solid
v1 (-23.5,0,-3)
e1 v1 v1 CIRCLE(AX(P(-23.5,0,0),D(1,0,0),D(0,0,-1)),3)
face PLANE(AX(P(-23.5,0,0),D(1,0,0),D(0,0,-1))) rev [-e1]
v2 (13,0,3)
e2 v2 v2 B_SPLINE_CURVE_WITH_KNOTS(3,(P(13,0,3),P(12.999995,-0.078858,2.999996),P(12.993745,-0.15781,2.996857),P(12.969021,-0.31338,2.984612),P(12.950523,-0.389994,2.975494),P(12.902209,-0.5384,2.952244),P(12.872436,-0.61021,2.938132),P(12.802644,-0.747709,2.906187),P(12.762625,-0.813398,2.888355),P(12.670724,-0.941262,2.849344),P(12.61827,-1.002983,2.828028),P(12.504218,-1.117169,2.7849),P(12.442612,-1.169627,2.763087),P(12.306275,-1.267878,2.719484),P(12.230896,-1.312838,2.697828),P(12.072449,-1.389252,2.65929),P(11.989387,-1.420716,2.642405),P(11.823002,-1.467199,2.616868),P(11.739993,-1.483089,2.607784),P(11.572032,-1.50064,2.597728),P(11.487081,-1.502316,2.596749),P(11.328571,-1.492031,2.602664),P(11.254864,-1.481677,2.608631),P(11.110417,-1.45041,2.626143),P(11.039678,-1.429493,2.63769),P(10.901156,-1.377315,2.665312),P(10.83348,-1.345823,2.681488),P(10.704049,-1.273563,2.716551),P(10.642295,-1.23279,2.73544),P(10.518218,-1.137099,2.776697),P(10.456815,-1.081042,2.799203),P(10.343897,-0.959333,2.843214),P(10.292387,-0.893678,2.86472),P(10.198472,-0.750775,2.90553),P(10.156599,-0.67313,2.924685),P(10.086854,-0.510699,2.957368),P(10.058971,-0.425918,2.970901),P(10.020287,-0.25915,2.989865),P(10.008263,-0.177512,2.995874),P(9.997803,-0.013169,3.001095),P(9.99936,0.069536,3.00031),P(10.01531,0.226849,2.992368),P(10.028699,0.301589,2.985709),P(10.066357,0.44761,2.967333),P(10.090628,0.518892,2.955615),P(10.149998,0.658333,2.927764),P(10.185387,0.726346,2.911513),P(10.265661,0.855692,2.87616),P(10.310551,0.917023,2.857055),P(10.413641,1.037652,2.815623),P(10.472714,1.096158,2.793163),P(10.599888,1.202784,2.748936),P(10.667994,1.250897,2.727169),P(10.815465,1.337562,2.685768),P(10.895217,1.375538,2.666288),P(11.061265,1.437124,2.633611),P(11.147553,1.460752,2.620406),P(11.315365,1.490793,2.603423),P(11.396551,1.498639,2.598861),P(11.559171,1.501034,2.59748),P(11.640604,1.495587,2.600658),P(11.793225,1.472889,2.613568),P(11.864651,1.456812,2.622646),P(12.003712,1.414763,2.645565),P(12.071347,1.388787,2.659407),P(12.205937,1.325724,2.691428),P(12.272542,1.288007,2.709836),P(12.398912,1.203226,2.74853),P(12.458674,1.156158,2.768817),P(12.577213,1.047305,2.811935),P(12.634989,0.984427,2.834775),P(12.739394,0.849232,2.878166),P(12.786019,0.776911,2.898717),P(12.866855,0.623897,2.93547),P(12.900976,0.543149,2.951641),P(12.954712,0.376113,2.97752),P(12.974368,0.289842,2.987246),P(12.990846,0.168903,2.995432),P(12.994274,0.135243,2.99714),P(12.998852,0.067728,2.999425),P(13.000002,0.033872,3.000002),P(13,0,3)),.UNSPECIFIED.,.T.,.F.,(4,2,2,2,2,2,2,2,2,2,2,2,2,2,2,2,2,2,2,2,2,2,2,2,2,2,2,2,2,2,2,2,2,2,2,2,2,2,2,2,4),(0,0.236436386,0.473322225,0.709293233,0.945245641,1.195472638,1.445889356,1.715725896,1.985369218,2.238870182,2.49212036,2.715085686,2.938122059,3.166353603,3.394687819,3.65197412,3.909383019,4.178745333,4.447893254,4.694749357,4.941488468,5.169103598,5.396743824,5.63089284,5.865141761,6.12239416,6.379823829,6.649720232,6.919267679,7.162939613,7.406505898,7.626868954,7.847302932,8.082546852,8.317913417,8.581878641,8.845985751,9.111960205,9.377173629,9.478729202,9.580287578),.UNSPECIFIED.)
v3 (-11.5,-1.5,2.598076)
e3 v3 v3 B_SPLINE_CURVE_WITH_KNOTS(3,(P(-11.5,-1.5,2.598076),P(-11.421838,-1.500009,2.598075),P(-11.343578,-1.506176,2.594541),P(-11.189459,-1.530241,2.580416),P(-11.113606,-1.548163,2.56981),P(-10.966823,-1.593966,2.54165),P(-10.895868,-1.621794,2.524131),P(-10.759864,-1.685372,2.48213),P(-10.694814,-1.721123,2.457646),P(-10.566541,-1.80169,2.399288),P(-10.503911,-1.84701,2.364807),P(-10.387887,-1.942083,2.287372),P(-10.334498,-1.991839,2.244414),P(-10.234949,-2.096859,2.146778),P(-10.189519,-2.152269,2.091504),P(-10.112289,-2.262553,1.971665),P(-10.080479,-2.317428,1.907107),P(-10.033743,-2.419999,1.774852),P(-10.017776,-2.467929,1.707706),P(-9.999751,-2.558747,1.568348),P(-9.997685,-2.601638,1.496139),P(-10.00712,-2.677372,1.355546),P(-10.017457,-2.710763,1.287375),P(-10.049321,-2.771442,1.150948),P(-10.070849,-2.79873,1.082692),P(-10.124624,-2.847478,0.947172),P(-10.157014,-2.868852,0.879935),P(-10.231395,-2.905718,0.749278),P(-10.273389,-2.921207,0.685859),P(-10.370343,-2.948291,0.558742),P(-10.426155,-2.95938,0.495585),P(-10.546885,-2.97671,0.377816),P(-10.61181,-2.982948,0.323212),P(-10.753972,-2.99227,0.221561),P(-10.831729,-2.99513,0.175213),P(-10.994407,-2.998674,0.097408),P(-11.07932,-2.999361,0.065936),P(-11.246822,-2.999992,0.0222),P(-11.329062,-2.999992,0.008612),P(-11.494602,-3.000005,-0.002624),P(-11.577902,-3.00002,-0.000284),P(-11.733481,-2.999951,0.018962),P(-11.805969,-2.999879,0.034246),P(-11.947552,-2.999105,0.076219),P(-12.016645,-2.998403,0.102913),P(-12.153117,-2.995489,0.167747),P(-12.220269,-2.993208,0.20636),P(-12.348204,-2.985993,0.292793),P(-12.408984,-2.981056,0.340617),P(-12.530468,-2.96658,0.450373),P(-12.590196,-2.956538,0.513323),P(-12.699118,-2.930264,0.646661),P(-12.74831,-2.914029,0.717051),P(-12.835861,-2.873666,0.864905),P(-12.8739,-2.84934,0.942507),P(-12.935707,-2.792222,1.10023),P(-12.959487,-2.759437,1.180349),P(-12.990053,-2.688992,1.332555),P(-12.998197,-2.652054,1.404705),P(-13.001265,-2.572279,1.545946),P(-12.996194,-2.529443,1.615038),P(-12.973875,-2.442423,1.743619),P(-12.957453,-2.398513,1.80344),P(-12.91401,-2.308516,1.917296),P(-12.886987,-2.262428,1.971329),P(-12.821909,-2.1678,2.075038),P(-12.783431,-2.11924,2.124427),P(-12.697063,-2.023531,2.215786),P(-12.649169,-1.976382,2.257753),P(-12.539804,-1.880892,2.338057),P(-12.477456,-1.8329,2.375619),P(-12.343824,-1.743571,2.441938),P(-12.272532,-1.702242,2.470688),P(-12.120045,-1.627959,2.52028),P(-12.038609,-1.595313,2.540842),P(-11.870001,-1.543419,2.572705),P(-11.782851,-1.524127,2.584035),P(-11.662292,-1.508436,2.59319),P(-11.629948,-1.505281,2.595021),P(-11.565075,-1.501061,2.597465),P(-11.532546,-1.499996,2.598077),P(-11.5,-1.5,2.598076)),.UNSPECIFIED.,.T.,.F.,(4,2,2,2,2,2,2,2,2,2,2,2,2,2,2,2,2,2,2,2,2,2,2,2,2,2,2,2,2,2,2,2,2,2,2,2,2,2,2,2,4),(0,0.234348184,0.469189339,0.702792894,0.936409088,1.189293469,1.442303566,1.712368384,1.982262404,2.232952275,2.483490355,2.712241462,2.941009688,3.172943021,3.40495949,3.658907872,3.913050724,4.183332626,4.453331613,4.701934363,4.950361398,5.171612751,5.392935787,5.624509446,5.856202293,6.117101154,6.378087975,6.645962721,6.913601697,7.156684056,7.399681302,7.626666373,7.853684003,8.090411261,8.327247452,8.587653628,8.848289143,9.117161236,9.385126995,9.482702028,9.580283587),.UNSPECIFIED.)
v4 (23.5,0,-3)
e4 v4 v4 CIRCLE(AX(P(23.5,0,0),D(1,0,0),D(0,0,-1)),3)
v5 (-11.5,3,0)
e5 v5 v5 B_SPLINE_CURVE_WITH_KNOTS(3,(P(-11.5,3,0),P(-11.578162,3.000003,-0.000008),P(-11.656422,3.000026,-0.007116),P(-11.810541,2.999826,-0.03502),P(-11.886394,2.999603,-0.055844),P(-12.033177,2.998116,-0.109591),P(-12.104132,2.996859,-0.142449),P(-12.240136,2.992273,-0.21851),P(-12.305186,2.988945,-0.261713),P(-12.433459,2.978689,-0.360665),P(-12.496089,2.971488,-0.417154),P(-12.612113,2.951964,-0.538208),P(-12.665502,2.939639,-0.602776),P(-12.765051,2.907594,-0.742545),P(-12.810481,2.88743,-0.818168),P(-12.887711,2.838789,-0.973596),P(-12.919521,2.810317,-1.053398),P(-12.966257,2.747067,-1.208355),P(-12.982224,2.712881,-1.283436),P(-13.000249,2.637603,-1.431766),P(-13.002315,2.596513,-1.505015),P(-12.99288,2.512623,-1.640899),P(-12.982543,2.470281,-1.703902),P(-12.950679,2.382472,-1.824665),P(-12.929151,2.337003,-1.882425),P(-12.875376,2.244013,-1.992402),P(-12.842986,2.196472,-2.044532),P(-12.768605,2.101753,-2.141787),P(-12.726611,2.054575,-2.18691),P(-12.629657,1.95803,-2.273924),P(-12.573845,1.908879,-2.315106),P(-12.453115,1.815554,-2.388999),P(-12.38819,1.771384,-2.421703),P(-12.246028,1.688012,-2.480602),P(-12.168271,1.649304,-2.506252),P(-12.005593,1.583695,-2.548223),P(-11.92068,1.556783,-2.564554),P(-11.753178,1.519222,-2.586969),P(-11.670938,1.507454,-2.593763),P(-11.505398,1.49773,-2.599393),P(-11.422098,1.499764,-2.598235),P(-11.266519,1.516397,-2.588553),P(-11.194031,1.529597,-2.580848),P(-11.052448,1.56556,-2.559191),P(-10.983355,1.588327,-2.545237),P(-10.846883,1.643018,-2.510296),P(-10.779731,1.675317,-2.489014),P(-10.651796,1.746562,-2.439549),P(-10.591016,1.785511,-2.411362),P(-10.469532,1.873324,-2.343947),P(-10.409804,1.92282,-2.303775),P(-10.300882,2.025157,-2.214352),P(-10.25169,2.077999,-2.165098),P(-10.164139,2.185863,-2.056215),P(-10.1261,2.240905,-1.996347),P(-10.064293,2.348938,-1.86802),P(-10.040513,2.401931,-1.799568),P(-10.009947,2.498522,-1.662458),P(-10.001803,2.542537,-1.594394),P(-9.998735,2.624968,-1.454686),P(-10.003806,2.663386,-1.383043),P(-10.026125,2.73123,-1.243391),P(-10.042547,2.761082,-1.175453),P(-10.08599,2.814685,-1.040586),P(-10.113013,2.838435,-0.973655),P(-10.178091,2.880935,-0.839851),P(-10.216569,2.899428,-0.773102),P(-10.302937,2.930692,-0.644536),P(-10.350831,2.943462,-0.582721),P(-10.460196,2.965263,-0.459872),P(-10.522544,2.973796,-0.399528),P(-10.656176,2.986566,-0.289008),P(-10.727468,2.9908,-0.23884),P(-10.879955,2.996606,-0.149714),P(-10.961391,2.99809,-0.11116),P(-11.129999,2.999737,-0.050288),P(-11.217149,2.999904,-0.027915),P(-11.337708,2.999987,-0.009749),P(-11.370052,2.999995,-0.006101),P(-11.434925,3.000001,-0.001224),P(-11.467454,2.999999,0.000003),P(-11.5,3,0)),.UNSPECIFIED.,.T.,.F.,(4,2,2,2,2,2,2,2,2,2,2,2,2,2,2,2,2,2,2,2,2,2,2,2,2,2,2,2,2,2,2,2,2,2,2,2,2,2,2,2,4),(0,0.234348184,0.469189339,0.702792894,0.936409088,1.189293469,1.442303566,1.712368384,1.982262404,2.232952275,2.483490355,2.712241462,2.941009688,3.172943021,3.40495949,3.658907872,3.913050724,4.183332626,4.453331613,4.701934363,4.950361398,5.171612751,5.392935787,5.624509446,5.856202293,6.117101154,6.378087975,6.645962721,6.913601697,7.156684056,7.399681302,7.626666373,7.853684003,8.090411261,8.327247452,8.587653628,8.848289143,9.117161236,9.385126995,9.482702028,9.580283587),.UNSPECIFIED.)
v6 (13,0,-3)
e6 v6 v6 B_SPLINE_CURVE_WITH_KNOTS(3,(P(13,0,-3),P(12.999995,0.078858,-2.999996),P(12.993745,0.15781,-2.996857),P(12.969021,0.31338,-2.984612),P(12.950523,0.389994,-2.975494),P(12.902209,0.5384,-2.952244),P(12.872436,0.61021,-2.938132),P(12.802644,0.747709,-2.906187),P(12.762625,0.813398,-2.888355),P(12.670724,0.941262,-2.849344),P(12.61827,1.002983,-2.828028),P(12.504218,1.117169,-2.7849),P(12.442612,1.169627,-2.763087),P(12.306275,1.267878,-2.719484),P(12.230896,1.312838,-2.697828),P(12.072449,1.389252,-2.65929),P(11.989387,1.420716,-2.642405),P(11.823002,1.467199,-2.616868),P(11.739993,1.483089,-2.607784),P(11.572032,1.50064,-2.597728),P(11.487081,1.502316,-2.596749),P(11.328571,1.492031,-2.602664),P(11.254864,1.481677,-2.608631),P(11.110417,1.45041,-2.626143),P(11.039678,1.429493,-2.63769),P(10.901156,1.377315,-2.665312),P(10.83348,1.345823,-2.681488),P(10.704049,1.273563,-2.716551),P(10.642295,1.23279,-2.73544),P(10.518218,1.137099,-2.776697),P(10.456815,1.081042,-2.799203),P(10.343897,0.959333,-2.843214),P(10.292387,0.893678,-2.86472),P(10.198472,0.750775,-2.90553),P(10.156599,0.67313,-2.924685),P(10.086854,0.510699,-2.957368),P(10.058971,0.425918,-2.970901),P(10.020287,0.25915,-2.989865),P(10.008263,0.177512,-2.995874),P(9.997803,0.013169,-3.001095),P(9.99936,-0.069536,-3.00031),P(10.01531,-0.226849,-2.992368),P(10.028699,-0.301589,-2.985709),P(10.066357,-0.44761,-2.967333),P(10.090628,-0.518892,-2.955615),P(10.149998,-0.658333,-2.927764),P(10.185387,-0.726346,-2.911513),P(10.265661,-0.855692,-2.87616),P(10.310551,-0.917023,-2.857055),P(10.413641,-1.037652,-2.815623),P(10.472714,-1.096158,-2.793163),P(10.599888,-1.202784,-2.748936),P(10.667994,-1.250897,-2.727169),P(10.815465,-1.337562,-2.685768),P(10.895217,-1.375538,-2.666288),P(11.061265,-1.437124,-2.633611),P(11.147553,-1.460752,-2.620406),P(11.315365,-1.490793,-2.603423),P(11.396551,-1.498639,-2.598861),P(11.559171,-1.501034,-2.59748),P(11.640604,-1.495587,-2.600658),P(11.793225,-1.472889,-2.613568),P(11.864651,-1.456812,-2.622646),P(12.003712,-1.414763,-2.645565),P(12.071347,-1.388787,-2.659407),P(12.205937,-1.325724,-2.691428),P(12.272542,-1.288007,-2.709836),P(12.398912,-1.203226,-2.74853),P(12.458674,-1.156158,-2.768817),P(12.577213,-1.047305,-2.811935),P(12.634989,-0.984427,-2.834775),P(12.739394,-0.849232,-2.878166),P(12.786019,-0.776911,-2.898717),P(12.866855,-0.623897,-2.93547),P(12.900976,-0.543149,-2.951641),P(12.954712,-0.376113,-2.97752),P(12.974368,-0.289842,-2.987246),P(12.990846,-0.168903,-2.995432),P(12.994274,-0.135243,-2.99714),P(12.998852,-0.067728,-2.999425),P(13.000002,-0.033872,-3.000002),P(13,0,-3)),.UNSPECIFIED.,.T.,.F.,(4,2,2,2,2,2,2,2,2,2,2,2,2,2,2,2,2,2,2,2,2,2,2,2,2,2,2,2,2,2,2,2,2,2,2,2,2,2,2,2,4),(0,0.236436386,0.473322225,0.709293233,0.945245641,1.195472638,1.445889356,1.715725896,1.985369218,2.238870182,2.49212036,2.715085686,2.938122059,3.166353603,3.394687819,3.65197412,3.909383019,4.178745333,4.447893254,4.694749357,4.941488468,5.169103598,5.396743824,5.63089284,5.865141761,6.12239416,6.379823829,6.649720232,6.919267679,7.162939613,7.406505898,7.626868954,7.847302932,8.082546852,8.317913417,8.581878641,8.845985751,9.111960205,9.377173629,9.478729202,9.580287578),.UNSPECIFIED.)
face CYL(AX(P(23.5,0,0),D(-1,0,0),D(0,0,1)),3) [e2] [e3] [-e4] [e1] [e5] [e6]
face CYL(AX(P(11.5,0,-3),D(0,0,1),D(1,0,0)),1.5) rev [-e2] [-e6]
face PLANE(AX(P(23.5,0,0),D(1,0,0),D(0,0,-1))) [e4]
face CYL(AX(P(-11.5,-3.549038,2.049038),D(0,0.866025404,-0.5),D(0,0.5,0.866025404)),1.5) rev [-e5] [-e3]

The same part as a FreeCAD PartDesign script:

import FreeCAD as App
import Part
import Sketcher
Q = App.Units.Quantity

doc = App.newDocument("Part")
body = doc.addObject("PartDesign::Body", "Body")

# Sketch on YZ plane
sketch1 = doc.addObject("Sketcher::SketchObject", "Sketch")
body.addObject(sketch1)
sketch1.AttachmentSupport = (doc.YZ_Plane, [""])
sketch1.MapMode = "FlatFace"
sketch1.addGeometry(Part.Circle(App.Vector(0, 0, 0), App.Vector(0, 0, 1), 3), False)
sketch1.addConstraint(Sketcher.Constraint("Coincident", 0, 3, -1, 1))
sketch1.addConstraint(Sketcher.Constraint("Diameter", 0, Q("6 mm")))
pad1 = doc.addObject("PartDesign::Pad", "Pad")
body.addObject(pad1)
pad1.Profile = sketch1
pad1.Length = 47
pad1.Midplane = True

# Sketch on XY plane
sketch2 = doc.addObject("Sketcher::SketchObject", "Sketch001")
body.addObject(sketch2)
sketch2.AttachmentSupport = (doc.XY_Plane, [""])
sketch2.MapMode = "FlatFace"
sketch2.addGeometry(Part.Circle(App.Vector(11.5, 0, 0), App.Vector(0, 0, 1), 1.5), False)
sketch2.addConstraint(Sketcher.Constraint("PointOnObject", 0, 3, -1))
sketch2.addConstraint(Sketcher.Constraint("Diameter", 0, Q("3 mm")))
sketch2.addConstraint(Sketcher.Constraint("DistanceX", -1, 1, 0, 3, Q("11.5 mm")))
pocket1 = doc.addObject("PartDesign::Pocket", "Pocket")
body.addObject(pocket1)
pocket1.Profile = sketch2
pocket1.Type = "ThroughAll"
pocket1.Midplane = True

# Sketch on an angled plane
sketch3 = doc.addObject("Sketcher::SketchObject", "Sketch002")
body.addObject(sketch3)
sketch3.Placement = App.Placement(App.Vector(0, 0, 0), App.Rotation(App.Vector(-1, 0, 0), App.Vector(0, 0.5, 0.866025404), App.Vector(0, 0.866025404, -0.5), "ZXY"))
sketch3.addGeometry(Part.Circle(App.Vector(11.5, 0, 0), App.Vector(0, 0, 1), 1.5), False)
sketch3.addConstraint(Sketcher.Constraint("PointOnObject", 0, 3, -1))
sketch3.addConstraint(Sketcher.Constraint("Diameter", 0, Q("3 mm")))
sketch3.addConstraint(Sketcher.Constraint("DistanceX", -1, 1, 0, 3, Q("11.5 mm")))
pocket2 = doc.addObject("PartDesign::Pocket", "Pocket001")
body.addObject(pocket2)
pocket2.Profile = sketch3
pocket2.Type = "ThroughAll"
pocket2.Midplane = True

doc.recompute()
